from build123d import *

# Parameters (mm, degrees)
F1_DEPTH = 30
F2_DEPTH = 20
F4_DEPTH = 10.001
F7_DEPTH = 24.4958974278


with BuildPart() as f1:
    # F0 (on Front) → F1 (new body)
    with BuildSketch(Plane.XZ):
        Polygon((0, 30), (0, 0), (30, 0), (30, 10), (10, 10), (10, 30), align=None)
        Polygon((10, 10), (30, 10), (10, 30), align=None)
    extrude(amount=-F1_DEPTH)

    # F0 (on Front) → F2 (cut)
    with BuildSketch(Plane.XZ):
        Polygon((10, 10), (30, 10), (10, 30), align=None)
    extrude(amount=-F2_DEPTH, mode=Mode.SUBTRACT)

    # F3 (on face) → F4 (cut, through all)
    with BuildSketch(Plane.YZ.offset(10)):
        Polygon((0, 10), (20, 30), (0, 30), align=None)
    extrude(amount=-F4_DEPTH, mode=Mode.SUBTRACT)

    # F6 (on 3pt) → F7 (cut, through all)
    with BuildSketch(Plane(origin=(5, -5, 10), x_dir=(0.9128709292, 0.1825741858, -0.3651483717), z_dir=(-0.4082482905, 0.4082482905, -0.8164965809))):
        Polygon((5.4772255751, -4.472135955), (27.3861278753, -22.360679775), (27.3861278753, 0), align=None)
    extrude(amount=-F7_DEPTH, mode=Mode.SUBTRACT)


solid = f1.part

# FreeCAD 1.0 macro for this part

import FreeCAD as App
import Part
import Sketcher
Q = App.Units.Quantity


def add_polygon(sketch, points):
    """Adds a closed chain of lines whose ends are joined by coincident constraints."""
    first, n = sketch.GeometryCount, len(points)
    for a, b in zip(points, points[1:] + points[:1]):
        sketch.addGeometry(Part.LineSegment(App.Vector(*a, 0), App.Vector(*b, 0)), False)
    for i in range(n):
        sketch.addConstraint(Sketcher.Constraint("Coincident", first + i, 2, first + (i + 1) % n, 1))

doc = App.newDocument("Part")
params = doc.addObject("Spreadsheet::Sheet", "Params")
for row, (alias, value) in enumerate([
    ("sketch1_width", "30 mm"),
    ("sketch1_width2", "10 mm"),
    ("pad1_length", "30 mm"),
    ("sketch2_width", "20 mm"),
    ("pocket1_length", "20 mm"),
    ("sketch3_width", "20 mm"),
], start=1):
    params.set(f"A{row}", alias)
    params.set(f"B{row}", "=" + value)
    params.setAlias(f"B{row}", alias)

body = doc.addObject("PartDesign::Body", "Body")

# Sketch on XZ plane
sketch1 = body.newObject("Sketcher::SketchObject", "Sketch")
sketch1.AttachmentSupport = (doc.getObject("XZ_Plane"), [""])
sketch1.MapMode = "FlatFace"
add_polygon(sketch1, [(0, 30), (0, 0), (30, 0), (30, 10), (10, 30)])  # lines 0-4
sketch1.addConstraint([
    Sketcher.Constraint("Vertical", 0),
    Sketcher.Constraint("Horizontal", 1),
    Sketcher.Constraint("Vertical", 2),
    Sketcher.Constraint("Horizontal", 4),
    Sketcher.Constraint("Coincident", 0, 2, -1, 1),
    Sketcher.Constraint("Equal", 1, 0),
    Sketcher.Constraint("Equal", 4, 2),
    Sketcher.Constraint("DistanceX", 1, 1, 1, 2, Q("30 mm")),
    Sketcher.Constraint("DistanceX", 4, 2, 4, 1, Q("10 mm")),
])
sketch1.setExpression("Constraints[12]", "Params.sketch1_width")
sketch1.setExpression("Constraints[13]", "Params.sketch1_width2")
pad1 = body.newObject("PartDesign::Pad", "Pad")
pad1.Profile = sketch1
pad1.setExpression("Length", "Params.pad1_length")
pad1.Reversed = True

# Sketch on XZ plane
sketch2 = body.newObject("Sketcher::SketchObject", "Sketch001")
sketch2.AttachmentSupport = (doc.getObject("XZ_Plane"), [""])
sketch2.MapMode = "FlatFace"
add_polygon(sketch2, [(10, 10), (30, 10), (10, 30)])  # lines 0-2
sketch2.addConstraint([
    Sketcher.Constraint("Horizontal", 0),
    Sketcher.Constraint("Vertical", 2),
    Sketcher.Constraint("Equal", 0, 2),
    Sketcher.Constraint("DistanceX", 0, 1, 0, 2, Q("20 mm")),
    Sketcher.Constraint("DistanceX", -1, 1, 0, 2, Q("30 mm")),
    Sketcher.Constraint("DistanceY", -1, 1, 0, 2, Q("10 mm")),
])
sketch2.setExpression("Constraints[6]", "Params.sketch2_width")
pocket1 = body.newObject("PartDesign::Pocket", "Pocket")
pocket1.Profile = sketch2
pocket1.setExpression("Length", "Params.pocket1_length")

# Sketch on YZ plane
sketch3 = body.newObject("Sketcher::SketchObject", "Sketch002")
sketch3.AttachmentSupport = (doc.getObject("YZ_Plane"), [""])
sketch3.MapMode = "FlatFace"
sketch3.AttachmentOffset = App.Placement(App.Vector(0, 0, 10), App.Rotation())
add_polygon(sketch3, [(0, 10), (20, 30), (0, 30)])  # lines 0-2
sketch3.addConstraint([
    Sketcher.Constraint("Horizontal", 1),
    Sketcher.Constraint("Vertical", 2),
    Sketcher.Constraint("PointOnObject", 1, 2, -2),
    Sketcher.Constraint("Equal", 1, 2),
    Sketcher.Constraint("DistanceX", 1, 2, 1, 1, Q("20 mm")),
    Sketcher.Constraint("DistanceY", -1, 1, 0, 2, Q("30 mm")),
])
sketch3.setExpression("Constraints[7]", "Params.sketch3_width")
pocket2 = body.newObject("PartDesign::Pocket", "Pocket001")
pocket2.Profile = sketch3
pocket2.Type = "ThroughAll"

# Sketch on an angled plane
sketch4 = body.newObject("Sketcher::SketchObject", "Sketch003")
sketch4.Placement = App.Placement(App.Vector(5, -5, 10), App.Rotation(App.Vector(0.912870929, 0.182574186, -0.365148372), App.Vector(0, -0.894427191, -0.447213595), App.Vector(-0.40824829, 0.40824829, -0.816496581), "ZXY"))
add_polygon(sketch4, [(5.477226, -4.472136), (27.386128, -22.36068), (27.386128, 0)])  # lines 0-2
sketch4.addConstraint([
    Sketcher.Constraint("Vertical", 1),
    Sketcher.Constraint("PointOnObject", 1, 2, -1),
    Sketcher.Constraint("DistanceY", 1, 1, 1, 2, Q("22.36068 mm")),
    Sketcher.Constraint("Distance", 0, Q("28.284271 mm")),
    Sketcher.Constraint("Distance", 2, Q("22.36068 mm")),
    Sketcher.Constraint("DistanceX", -1, 1, 0, 2, Q("27.386128 mm")),
])
pocket3 = body.newObject("PartDesign::Pocket", "Pocket002")
pocket3.Profile = sketch4
pocket3.Type = "ThroughAll"

doc.recompute()
